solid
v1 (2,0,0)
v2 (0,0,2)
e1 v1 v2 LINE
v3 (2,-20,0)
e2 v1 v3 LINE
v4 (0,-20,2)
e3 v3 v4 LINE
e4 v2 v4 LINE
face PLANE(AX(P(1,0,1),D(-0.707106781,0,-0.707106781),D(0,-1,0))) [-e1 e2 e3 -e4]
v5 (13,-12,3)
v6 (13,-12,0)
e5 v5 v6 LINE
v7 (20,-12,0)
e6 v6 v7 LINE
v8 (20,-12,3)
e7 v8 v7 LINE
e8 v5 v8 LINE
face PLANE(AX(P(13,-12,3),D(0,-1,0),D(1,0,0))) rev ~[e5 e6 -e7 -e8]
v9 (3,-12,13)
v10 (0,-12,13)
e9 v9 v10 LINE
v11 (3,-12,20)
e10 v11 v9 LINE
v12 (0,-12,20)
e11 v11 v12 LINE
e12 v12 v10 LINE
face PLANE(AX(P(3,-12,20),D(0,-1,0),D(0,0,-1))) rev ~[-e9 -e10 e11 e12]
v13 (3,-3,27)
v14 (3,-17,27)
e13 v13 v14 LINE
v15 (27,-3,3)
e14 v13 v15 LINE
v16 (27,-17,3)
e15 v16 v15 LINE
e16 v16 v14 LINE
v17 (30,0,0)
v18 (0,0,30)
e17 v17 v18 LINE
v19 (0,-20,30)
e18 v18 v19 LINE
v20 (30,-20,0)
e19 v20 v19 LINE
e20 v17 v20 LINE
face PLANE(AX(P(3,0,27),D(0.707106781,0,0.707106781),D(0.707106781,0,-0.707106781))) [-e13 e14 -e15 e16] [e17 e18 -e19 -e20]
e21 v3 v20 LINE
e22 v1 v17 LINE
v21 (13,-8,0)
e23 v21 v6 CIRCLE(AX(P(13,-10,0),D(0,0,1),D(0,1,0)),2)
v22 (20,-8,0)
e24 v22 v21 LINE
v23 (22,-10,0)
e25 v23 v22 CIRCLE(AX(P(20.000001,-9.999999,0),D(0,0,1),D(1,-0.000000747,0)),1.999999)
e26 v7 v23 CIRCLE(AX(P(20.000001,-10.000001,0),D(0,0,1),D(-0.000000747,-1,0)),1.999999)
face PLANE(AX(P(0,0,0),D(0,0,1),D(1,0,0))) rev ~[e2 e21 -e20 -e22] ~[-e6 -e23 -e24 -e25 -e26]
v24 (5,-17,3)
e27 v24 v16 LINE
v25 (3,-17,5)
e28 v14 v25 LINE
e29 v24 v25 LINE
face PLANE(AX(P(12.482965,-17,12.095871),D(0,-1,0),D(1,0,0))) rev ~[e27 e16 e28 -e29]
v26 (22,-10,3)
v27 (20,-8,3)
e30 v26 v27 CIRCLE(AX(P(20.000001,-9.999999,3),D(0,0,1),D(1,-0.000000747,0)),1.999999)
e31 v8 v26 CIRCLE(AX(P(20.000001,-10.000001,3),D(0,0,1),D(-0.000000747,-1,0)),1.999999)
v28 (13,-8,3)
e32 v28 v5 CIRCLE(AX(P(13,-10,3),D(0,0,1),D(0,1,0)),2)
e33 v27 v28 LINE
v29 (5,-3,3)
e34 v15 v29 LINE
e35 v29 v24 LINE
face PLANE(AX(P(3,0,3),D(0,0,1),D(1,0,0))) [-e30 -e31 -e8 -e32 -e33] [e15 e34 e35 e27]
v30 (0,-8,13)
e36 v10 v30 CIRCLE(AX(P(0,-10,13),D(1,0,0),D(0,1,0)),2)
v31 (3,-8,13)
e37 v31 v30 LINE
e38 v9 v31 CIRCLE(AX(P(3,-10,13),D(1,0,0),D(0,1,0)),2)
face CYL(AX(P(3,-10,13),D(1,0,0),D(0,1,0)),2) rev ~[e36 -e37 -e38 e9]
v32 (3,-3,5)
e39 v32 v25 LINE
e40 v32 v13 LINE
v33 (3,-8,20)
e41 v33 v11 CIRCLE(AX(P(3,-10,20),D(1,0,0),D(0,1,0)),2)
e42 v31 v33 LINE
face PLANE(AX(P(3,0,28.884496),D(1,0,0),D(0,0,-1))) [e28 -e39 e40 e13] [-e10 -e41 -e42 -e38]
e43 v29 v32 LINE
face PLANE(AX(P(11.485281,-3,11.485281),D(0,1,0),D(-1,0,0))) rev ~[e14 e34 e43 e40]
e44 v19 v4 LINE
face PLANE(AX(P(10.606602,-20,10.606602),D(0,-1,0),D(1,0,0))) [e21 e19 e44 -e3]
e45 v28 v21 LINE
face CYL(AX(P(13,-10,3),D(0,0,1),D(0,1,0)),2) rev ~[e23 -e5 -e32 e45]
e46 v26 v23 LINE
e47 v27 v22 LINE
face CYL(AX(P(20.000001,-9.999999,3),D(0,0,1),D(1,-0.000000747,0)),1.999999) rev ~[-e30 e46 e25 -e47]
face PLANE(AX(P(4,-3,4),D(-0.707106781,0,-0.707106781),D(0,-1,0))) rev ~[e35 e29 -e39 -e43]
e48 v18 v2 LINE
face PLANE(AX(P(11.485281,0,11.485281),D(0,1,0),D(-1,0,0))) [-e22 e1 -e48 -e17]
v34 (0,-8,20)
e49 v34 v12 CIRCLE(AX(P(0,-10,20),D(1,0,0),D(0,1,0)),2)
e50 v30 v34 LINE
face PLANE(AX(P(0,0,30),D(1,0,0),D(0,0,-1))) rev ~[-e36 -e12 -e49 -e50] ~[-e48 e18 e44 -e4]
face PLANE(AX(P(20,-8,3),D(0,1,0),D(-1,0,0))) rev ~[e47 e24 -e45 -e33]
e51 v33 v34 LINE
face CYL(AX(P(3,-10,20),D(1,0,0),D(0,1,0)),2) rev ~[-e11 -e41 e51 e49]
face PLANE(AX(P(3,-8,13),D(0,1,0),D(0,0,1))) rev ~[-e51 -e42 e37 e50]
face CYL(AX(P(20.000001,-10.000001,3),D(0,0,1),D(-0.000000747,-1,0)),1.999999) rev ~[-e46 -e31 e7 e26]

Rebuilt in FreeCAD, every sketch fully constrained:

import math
import FreeCAD as App
import Part
import Sketcher
from FreeCAD import Vector


def edges_at(feature, points):
    """Names of the edges that pass closest to the given points."""
    edges = feature.Shape.Edges
    near = lambda p: min(range(len(edges)), key=lambda i: edges[i].distToShape(Part.Vertex(*p))[0])
    return sorted({f"Edge{near(p) + 1}" for p in points})

doc = App.newDocument("Part")
body = doc.addObject("PartDesign::Body", "Body")

sketch1 = doc.addObject("Sketcher::SketchObject", "Sketch")
body.addObject(sketch1)
sketch1.AttachmentSupport = (doc.XZ_Plane, [""])
sketch1.MapMode = "FlatFace"
sketch1.addGeometry([
    Part.LineSegment(Vector(0, 30, 0), Vector(0, 0, 0)),
    Part.LineSegment(Vector(0, 0, 0), Vector(30, 0, 0)),
    Part.LineSegment(Vector(30, 0, 0), Vector(0, 30, 0)),
], False)
sketch1.addConstraint([
    Sketcher.Constraint("Coincident", 0, 2, 1, 1),
    Sketcher.Constraint("Coincident", 1, 2, 2, 1),
    Sketcher.Constraint("Coincident", 2, 2, 0, 1),
    Sketcher.Constraint("Vertical", 0),
    Sketcher.Constraint("Horizontal", 1),
    Sketcher.Constraint("Coincident", 0, 2, -1, 1),
    Sketcher.Constraint("Equal", 1, 0),
    Sketcher.Constraint("DistanceX", 1, 1, 1, 2, 30.0),
])
pad1 = doc.addObject("PartDesign::Pad", "Pad")
body.addObject(pad1)
pad1.Profile = sketch1
pad1.Length = 20

sketch2 = doc.addObject("Sketcher::SketchObject", "Sketch001")
body.addObject(sketch2)
sketch2.AttachmentSupport = (doc.XZ_Plane, [""])
sketch2.MapMode = "FlatFace"
sketch2.addGeometry([
    Part.LineSegment(Vector(30, 3, 0), Vector(3, 29, 0)),
    Part.LineSegment(Vector(3, 29, 0), Vector(3, 3, 0)),
    Part.LineSegment(Vector(3, 3, 0), Vector(30, 3, 0)),
], False)
sketch2.addConstraint([
    Sketcher.Constraint("Coincident", 0, 2, 1, 1),
    Sketcher.Constraint("Coincident", 1, 2, 2, 1),
    Sketcher.Constraint("Coincident", 2, 2, 0, 1),
    Sketcher.Constraint("Vertical", 1),
    Sketcher.Constraint("Horizontal", 2),
    Sketcher.Constraint("DistanceX", -1, 1, 0, 2, 3.0),
    Sketcher.Constraint("DistanceY", -1, 1, 1, 2, 3.0),
    Sketcher.Constraint("Distance", 0, 37.157672),
    Sketcher.Constraint("DistanceX", 2, 1, 2, 2, 26.658684),
])
pocket1 = doc.addObject("PartDesign::Pocket", "Pocket")
body.addObject(pocket1)
pocket1.Profile = sketch2
pocket1.Length = 17
pocket1.Reversed = True

sketch3 = doc.addObject("Sketcher::SketchObject", "Sketch002")
body.addObject(sketch3)
sketch3.AttachmentSupport = (doc.XZ_Plane, [""])
sketch3.MapMode = "FlatFace"
sketch3.addGeometry([
    Part.LineSegment(Vector(3, 3, 0), Vector(3, 27, 0)),
    Part.LineSegment(Vector(3, 27, 0), Vector(27, 3, 0)),
    Part.LineSegment(Vector(27, 3, 0), Vector(3, 3, 0)),
], False)
sketch3.addConstraint([
    Sketcher.Constraint("Coincident", 0, 2, 1, 1),
    Sketcher.Constraint("Coincident", 1, 2, 2, 1),
    Sketcher.Constraint("Coincident", 2, 2, 0, 1),
    Sketcher.Constraint("Vertical", 0),
    Sketcher.Constraint("Horizontal", 2),
    Sketcher.Constraint("Equal", 2, 0),
    Sketcher.Constraint("DistanceX", 2, 2, 2, 1, 24.0),
    Sketcher.Constraint("DistanceX", -1, 1, 0, 2, 3.0),
    Sketcher.Constraint("DistanceY", -1, 1, 0, 2, 27.0),
])
pad2 = doc.addObject("PartDesign::Pad", "Pad001")
body.addObject(pad2)
pad2.Profile = sketch3
pad2.Length = 3
doc.recompute()

chamfer = doc.addObject("PartDesign::Chamfer", "Chamfer")
body.addObject(chamfer)
chamfer.Base = (pad2, edges_at(pad2, [(0, -10, 0)]))
chamfer.Size = 2

sketch4 = doc.addObject("Sketcher::SketchObject", "Sketch003")
body.addObject(sketch4)
sketch4.AttachmentSupport = (doc.YZ_Plane, [""])
sketch4.MapMode = "FlatFace"
sketch4.AttachmentOffset = App.Placement(Vector(0, 0, 3), App.Rotation())
sketch4.addGeometry([
    Part.ArcOfCircle(Part.Circle(Vector(-10, 20, 0), Vector(0, 0, 1), 2), math.radians(0), math.radians(180)),
    Part.LineSegment(Vector(-12, 20, 0), Vector(-12, 13, 0)),
    Part.ArcOfCircle(Part.Circle(Vector(-10, 13, 0), Vector(0, 0, 1), 2), math.radians(180), math.radians(360)),
    Part.LineSegment(Vector(-8, 13, 0), Vector(-8, 20, 0)),
], False)
sketch4.addConstraint([
    Sketcher.Constraint("Tangent", 0, 2, 1, 1),
    Sketcher.Constraint("Tangent", 1, 2, 2, 1),
    Sketcher.Constraint("Tangent", 2, 2, 3, 1),
    Sketcher.Constraint("Tangent", 3, 2, 0, 1),
    Sketcher.Constraint("Vertical", 1),
    Sketcher.Constraint("Vertical", 3),
    Sketcher.Constraint("Radius", 0, 2.0),
    Sketcher.Constraint("DistanceY", 1, 2, 1, 1, 7.0),
    Sketcher.Constraint("DistanceX", 0, 3, -1, 1, 10.0),
    Sketcher.Constraint("DistanceY", -1, 1, 0, 3, 20.0),
])
pocket2 = doc.addObject("PartDesign::Pocket", "Pocket001")
body.addObject(pocket2)
pocket2.Profile = sketch4
pocket2.Length = 25
doc.recompute()

chamfer2 = doc.addObject("PartDesign::Chamfer", "Chamfer001")
body.addObject(chamfer2)
chamfer2.Base = (pocket2, edges_at(pocket2, [(3, -10, 3)]))
chamfer2.Size = 2

sketch5 = doc.addObject("Sketcher::SketchObject", "Sketch004")
body.addObject(sketch5)
sketch5.AttachmentSupport = (doc.XY_Plane, [""])
sketch5.MapMode = "FlatFace"
sketch5.AttachmentOffset = App.Placement(Vector(0, 0, 3), App.Rotation())
sketch5.addGeometry([
    Part.ArcOfCircle(Part.Circle(Vector(20, -10, 0), Vector(0, 0, 1), 2), math.radians(-90), math.radians(0)),
    Part.ArcOfCircle(Part.Circle(Vector(20, -10, 0), Vector(0, 0, 1), 2), math.radians(0), math.radians(90)),
    Part.LineSegment(Vector(20, -8, 0), Vector(13, -8, 0)),
    Part.ArcOfCircle(Part.Circle(Vector(13, -10, 0), Vector(0, 0, 1), 2), math.radians(90), math.radians(270)),
    Part.LineSegment(Vector(13, -12, 0), Vector(20, -12, 0)),
], False)
sketch5.addConstraint([
    Sketcher.Constraint("Tangent", 0, 2, 1, 1),
    Sketcher.Constraint("Tangent", 1, 2, 2, 1),
    Sketcher.Constraint("Tangent", 2, 2, 3, 1),
    Sketcher.Constraint("Tangent", 3, 2, 4, 1),
    Sketcher.Constraint("Tangent", 4, 2, 0, 1),
    Sketcher.Constraint("Horizontal", 2),
    Sketcher.Constraint("Horizontal", 4),
    Sketcher.Constraint("Equal", 0, 1),
    Sketcher.Constraint("Horizontal", 3, 3, 0, 2),
    Sketcher.Constraint("Radius", 0, 1.999999),
    Sketcher.Constraint("DistanceX", 2, 2, 2, 1, 7.0),
    Sketcher.Constraint("DistanceX", -1, 1, 0, 3, 20.000001),
    Sketcher.Constraint("DistanceY", 0, 3, -1, 1, 10.000001),
])
pocket3 = doc.addObject("PartDesign::Pocket", "Pocket002")
body.addObject(pocket3)
pocket3.Profile = sketch5
pocket3.Length = 25

doc.recompute()
